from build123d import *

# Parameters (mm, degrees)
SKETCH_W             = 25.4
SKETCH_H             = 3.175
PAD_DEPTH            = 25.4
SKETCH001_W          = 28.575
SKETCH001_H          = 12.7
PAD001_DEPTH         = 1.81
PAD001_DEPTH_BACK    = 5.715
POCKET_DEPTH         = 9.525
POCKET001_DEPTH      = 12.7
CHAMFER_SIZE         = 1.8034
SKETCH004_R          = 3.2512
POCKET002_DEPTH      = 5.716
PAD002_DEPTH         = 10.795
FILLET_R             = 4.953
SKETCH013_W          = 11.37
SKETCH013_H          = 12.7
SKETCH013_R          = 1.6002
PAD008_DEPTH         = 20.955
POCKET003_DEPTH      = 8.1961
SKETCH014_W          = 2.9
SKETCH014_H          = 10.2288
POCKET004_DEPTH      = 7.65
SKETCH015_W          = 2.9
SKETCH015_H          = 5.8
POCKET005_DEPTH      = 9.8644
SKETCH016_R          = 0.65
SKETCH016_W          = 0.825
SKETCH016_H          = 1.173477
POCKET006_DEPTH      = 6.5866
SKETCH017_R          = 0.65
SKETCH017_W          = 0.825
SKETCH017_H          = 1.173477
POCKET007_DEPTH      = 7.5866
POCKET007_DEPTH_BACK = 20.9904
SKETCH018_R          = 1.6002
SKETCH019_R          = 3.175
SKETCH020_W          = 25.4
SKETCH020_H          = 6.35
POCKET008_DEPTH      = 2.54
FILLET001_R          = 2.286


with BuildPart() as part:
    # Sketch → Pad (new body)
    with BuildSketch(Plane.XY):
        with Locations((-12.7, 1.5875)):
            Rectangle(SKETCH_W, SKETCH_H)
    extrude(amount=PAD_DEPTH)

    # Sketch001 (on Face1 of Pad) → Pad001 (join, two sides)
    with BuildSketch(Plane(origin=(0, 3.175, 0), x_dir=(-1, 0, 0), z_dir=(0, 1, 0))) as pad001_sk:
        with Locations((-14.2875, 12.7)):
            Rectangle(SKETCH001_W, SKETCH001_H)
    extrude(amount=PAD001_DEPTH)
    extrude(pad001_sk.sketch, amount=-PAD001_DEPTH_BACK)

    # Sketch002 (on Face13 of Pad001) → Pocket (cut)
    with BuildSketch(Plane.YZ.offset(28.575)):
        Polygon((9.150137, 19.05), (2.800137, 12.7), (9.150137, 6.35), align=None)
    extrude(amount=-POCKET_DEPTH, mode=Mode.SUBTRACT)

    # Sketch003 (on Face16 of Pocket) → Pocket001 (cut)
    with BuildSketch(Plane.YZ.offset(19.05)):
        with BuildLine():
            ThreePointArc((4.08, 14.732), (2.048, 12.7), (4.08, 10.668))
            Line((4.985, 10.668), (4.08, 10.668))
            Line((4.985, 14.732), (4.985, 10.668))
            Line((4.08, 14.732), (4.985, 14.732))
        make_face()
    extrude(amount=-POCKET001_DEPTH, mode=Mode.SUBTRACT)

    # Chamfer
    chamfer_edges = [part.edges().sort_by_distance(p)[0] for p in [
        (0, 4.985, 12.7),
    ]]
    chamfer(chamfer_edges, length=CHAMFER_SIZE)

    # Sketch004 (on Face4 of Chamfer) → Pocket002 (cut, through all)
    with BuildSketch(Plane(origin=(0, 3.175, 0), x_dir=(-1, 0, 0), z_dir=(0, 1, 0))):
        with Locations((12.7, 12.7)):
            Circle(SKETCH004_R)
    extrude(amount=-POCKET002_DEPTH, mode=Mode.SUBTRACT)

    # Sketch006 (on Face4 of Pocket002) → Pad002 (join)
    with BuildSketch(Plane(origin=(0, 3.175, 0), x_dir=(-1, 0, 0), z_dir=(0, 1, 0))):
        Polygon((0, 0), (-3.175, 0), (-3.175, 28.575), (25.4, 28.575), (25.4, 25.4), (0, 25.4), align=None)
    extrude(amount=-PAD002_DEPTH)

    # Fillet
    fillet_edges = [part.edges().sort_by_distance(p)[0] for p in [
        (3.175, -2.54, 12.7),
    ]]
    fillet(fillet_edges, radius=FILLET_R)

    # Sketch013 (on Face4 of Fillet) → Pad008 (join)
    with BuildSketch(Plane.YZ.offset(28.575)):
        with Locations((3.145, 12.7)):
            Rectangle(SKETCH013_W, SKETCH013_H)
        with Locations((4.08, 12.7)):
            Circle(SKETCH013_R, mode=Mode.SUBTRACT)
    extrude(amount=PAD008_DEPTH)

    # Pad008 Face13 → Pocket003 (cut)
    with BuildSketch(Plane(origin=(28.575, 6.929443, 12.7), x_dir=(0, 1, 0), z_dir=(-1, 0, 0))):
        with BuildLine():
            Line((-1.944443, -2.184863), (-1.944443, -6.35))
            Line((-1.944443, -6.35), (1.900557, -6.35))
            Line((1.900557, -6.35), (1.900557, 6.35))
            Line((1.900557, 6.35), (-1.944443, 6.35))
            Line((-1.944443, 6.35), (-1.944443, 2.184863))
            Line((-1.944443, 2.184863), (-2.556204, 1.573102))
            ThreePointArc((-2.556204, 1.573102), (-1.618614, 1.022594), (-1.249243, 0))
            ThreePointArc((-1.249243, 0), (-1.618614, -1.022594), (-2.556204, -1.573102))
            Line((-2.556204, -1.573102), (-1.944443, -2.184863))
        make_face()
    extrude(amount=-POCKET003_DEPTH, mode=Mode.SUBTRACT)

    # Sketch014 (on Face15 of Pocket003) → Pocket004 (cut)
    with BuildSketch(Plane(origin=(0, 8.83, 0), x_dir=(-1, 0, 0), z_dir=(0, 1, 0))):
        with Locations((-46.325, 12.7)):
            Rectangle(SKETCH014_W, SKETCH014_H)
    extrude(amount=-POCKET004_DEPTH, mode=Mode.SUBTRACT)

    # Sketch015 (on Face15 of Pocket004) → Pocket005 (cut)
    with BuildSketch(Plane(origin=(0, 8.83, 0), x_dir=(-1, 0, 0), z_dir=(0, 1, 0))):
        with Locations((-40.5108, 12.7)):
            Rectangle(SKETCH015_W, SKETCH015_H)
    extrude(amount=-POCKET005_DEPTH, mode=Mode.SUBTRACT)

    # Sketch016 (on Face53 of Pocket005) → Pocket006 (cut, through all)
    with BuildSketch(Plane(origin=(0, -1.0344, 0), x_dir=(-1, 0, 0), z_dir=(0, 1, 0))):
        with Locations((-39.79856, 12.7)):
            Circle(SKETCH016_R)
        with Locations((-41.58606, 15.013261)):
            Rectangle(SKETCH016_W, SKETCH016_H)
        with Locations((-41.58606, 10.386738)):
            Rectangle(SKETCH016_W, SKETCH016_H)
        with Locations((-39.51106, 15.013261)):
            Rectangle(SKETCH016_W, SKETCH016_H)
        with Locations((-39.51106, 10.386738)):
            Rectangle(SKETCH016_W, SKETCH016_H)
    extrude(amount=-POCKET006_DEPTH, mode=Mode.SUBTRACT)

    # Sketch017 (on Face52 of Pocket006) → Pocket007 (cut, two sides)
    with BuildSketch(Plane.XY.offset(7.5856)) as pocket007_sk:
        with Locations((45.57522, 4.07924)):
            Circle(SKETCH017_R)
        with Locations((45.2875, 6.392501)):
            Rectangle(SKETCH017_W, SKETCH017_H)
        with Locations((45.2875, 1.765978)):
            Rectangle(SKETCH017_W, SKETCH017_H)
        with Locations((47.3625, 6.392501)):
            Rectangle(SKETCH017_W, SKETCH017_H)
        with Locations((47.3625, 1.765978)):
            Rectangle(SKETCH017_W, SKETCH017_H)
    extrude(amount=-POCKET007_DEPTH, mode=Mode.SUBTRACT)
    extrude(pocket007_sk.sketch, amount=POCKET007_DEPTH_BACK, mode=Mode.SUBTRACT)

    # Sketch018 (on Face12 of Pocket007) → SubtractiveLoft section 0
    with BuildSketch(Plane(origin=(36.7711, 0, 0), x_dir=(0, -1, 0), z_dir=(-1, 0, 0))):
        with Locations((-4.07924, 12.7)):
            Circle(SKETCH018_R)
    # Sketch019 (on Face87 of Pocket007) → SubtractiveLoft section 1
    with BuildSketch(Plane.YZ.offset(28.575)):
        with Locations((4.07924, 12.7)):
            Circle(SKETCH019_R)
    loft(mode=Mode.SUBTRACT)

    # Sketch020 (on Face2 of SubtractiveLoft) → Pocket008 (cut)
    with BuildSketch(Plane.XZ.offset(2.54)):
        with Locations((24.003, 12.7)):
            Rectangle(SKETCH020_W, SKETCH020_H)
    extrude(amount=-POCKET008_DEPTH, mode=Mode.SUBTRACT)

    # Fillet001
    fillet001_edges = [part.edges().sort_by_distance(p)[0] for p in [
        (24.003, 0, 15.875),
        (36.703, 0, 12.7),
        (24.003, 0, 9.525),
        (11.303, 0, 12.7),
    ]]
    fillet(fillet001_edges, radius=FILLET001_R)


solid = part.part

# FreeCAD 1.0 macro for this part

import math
import FreeCAD as App
import Part
import Sketcher

V = App.Vector
Q = App.Units.Quantity


def edges_at(feature, points):
    """Names of the edges that pass closest to the given points."""
    edges = feature.Shape.Edges
    near = lambda p: min(range(len(edges)), key=lambda i: edges[i].distToShape(Part.Vertex(*p))[0])
    return sorted({f"Edge{near(p) + 1}" for p in points})


def add_polygon(sketch, points):
    """Adds a closed chain of lines whose ends are joined by coincident constraints."""
    first, n = sketch.GeometryCount, len(points)
    for a, b in zip(points, points[1:] + points[:1]):
        sketch.addGeometry(Part.LineSegment(App.Vector(*a, 0), App.Vector(*b, 0)), False)
    for i in range(n):
        sketch.addConstraint(Sketcher.Constraint("Coincident", first + i, 2, first + (i + 1) % n, 1))

doc = App.newDocument("Part")
body = doc.addObject("PartDesign::Body", "Body")

sketch1 = body.newObject("Sketcher::SketchObject", "Sketch")
sketch1.AttachmentSupport = (doc.getObject("XY_Plane"), [""])
sketch1.MapMode = "FlatFace"
add_polygon(sketch1, [(-25.4, 3.175), (-25.4, 0), (0, 0), (0, 3.175)])
sketch1.addConstraint([
    Sketcher.Constraint("Vertical", 0),
    Sketcher.Constraint("Horizontal", 1),
    Sketcher.Constraint("Vertical", 2),
    Sketcher.Constraint("Horizontal", 3),
    Sketcher.Constraint("Coincident", 1, 2, -1, 1),
    Sketcher.Constraint("DistanceX", 1, 1, 1, 2, Q("1 in")),
    Sketcher.Constraint("DistanceY", 0, 2, 0, 1, Q("0.125 in")),
])
pad1 = body.newObject("PartDesign::Pad", "Pad")
pad1.Profile = sketch1
pad1.Length = Q("1 in")

sketch2 = body.newObject("Sketcher::SketchObject", "Sketch001")
sketch2.AttachmentSupport = (doc.getObject("XZ_Plane"), [""])
sketch2.MapMode = "FlatFace"
sketch2.AttachmentOffset = App.Placement(V(0, 0, -0.125 * 25.4), App.Rotation())
add_polygon(sketch2, [(28.575, 19.05), (28.575, 6.35), (0, 6.35), (0, 19.05)])
sketch2.addConstraint([
    Sketcher.Constraint("Vertical", 0),
    Sketcher.Constraint("Horizontal", 1),
    Sketcher.Constraint("Vertical", 2),
    Sketcher.Constraint("Horizontal", 3),
    Sketcher.Constraint("PointOnObject", 1, 2, -2),
    Sketcher.Constraint("DistanceY", 0, 2, 0, 1, Q("0.5 in")),
    Sketcher.Constraint("DistanceX", 1, 2, 1, 1, Q("1.125 in")),
    Sketcher.Constraint("DistanceY", -1, 1, 0, 2, Q("0.25 in")),
])
pad2 = body.newObject("PartDesign::Pad", "Pad001")
pad2.Profile = sketch2
pad2.Type = "TwoLengths"
pad2.Length = 1.81
pad2.Length2 = Q("0.225 in")
pad2.Reversed = True

sketch3 = body.newObject("Sketcher::SketchObject", "Sketch002")
sketch3.AttachmentSupport = (doc.getObject("YZ_Plane"), [""])
sketch3.MapMode = "FlatFace"
sketch3.AttachmentOffset = App.Placement(V(0, 0, 1.125 * 25.4), App.Rotation())
add_polygon(sketch3, [(9.150137, 19.05), (2.800137, 12.7), (9.150137, 6.35)])
sketch3.addConstraint([
    Sketcher.Constraint("Vertical", 2),
    Sketcher.Constraint("Perpendicular", 0, 1),
    Sketcher.Constraint("Equal", 0, 1),
    Sketcher.Constraint("DistanceY", 2, 1, 2, 2, Q("0.5 in")),
    Sketcher.Constraint("DistanceY", -1, 1, 0, 2, Q("0.5 in")),
    Sketcher.Constraint("DistanceX", -1, 1, 0, 2, 2.800137),
])
pocket1 = body.newObject("PartDesign::Pocket", "Pocket")
pocket1.Profile = sketch3
pocket1.Length = Q("0.375 in")

sketch4 = body.newObject("Sketcher::SketchObject", "Sketch003")
sketch4.AttachmentSupport = (doc.getObject("YZ_Plane"), [""])
sketch4.MapMode = "FlatFace"
sketch4.AttachmentOffset = App.Placement(V(0, 0, 0.75 * 25.4), App.Rotation())
sketch4.addGeometry([
    Part.ArcOfCircle(Part.Circle(V(4.08, 12.7, 0), V(0, 0, 1), 2.032), math.radians(90), math.radians(270)),
    Part.LineSegment(V(4.08, 10.668, 0), V(4.985, 10.668, 0)),
    Part.LineSegment(V(4.985, 10.668, 0), V(4.985, 14.732, 0)),
    Part.LineSegment(V(4.985, 14.732, 0), V(4.08, 14.732, 0)),
], False)
sketch4.addConstraint([
    Sketcher.Constraint("Tangent", 0, 2, 1, 1),
    Sketcher.Constraint("Coincident", 1, 2, 2, 1),
    Sketcher.Constraint("Coincident", 2, 2, 3, 1),
    Sketcher.Constraint("Tangent", 3, 2, 0, 1),
    Sketcher.Constraint("Horizontal", 1),
    Sketcher.Constraint("Vertical", 2),
    Sketcher.Constraint("Horizontal", 3),
    Sketcher.Constraint("Radius", 0, Q("0.08 in")),
    Sketcher.Constraint("DistanceY", -1, 1, 0, 3, Q("0.5 in")),
    Sketcher.Constraint("DistanceX", 1, 1, 1, 2, 0.905),
    Sketcher.Constraint("DistanceX", -1, 1, 0, 3, 4.08),
])
pocket2 = body.newObject("PartDesign::Pocket", "Pocket001")
pocket2.Profile = sketch4
pocket2.Length = Q("0.5 in")
doc.recompute()

chamfer = body.newObject("PartDesign::Chamfer", "Chamfer")
chamfer.Base = (pocket2, edges_at(pocket2, [(0, 4.985, 12.7)]))
chamfer.Size = Q("0.071 in")

sketch5 = body.newObject("Sketcher::SketchObject", "Sketch004")
sketch5.AttachmentSupport = (doc.getObject("XZ_Plane"), [""])
sketch5.MapMode = "FlatFace"
sketch5.AttachmentOffset = App.Placement(V(0, 0, -0.125 * 25.4), App.Rotation())
sketch5.addGeometry(Part.Circle(V(-12.7, 12.7, 0), V(0, 0, 1), 3.2512), False)
sketch5.addConstraint([
    Sketcher.Constraint("Diameter", 0, Q("0.256 in")),
    Sketcher.Constraint("DistanceX", 0, 3, -1, 1, Q("0.5 in")),
    Sketcher.Constraint("DistanceY", -1, 1, 0, 3, Q("0.5 in")),
])
pocket3 = body.newObject("PartDesign::Pocket", "Pocket002")
pocket3.Profile = sketch5
pocket3.Type = "ThroughAll"
pocket3.Reversed = True

sketch6 = body.newObject("Sketcher::SketchObject", "Sketch005")
sketch6.AttachmentSupport = (doc.getObject("XZ_Plane"), [""])
sketch6.MapMode = "FlatFace"
sketch6.AttachmentOffset = App.Placement(V(0, 0, -0.125 * 25.4), App.Rotation())
add_polygon(sketch6, [(3.175, 0), (0, 0), (0, 25.4), (-25.4, 25.4), (-25.4, 28.575), (3.175, 28.575)])
sketch6.addConstraint([
    Sketcher.Constraint("Horizontal", 0),
    Sketcher.Constraint("Vertical", 1),
    Sketcher.Constraint("Horizontal", 2),
    Sketcher.Constraint("Vertical", 3),
    Sketcher.Constraint("Horizontal", 4),
    Sketcher.Constraint("Vertical", 5),
    Sketcher.Constraint("Coincident", 0, 2, -1, 1),
    Sketcher.Constraint("Equal", 2, 1),
    Sketcher.Constraint("Equal", 0, 3),
    Sketcher.Constraint("DistanceX", 2, 2, 2, 1, Q("1 in")),
    Sketcher.Constraint("DistanceX", 0, 2, 0, 1, Q("0.125 in")),
])
pad3 = body.newObject("PartDesign::Pad", "Pad002")
pad3.Profile = sketch6
pad3.Length = Q("0.425 in")
doc.recompute()

fillet = body.newObject("PartDesign::Fillet", "Fillet")
fillet.Base = (pad3, edges_at(pad3, [(3.175, -2.54, 12.7)]))
fillet.Radius = Q("0.195 in")

sketch7 = body.newObject("Sketcher::SketchObject", "Sketch006")
sketch7.AttachmentSupport = (doc.getObject("YZ_Plane"), [""])
sketch7.MapMode = "FlatFace"
sketch7.AttachmentOffset = App.Placement(V(0, 0, 1.125 * 25.4), App.Rotation())
add_polygon(sketch7, [(-2.54, 19.05), (-2.54, 6.35), (8.83, 6.35), (8.83, 19.05)])
sketch7.addGeometry(Part.Circle(V(4.08, 12.7, 0), V(0, 0, 1), 1.6002), False)
sketch7.addConstraint([
    Sketcher.Constraint("Vertical", 0),
    Sketcher.Constraint("Horizontal", 1),
    Sketcher.Constraint("Vertical", 2),
    Sketcher.Constraint("Horizontal", 3),
    Sketcher.Constraint("Diameter", 4, Q("0.126 in")),
    Sketcher.Constraint("DistanceY", 0, 2, 0, 1, Q("0.5 in")),
    Sketcher.Constraint("DistanceY", -1, 1, 4, 3, Q("0.5 in")),
    Sketcher.Constraint("DistanceX", 0, 2, -1, 1, Q("0.1 in")),
    Sketcher.Constraint("DistanceY", -1, 1, 0, 2, Q("0.25 in")),
    Sketcher.Constraint("DistanceX", 1, 1, 1, 2, 11.37),
    Sketcher.Constraint("DistanceX", -1, 1, 4, 3, 4.08),
])
pad4 = body.newObject("PartDesign::Pad", "Pad003")
pad4.Profile = sketch7
pad4.Length = Q("0.825 in")

sketch8 = body.newObject("Sketcher::SketchObject", "Sketch007")
sketch8.AttachmentSupport = (doc.getObject("YZ_Plane"), [""])
sketch8.MapMode = "FlatFace"
sketch8.AttachmentOffset = App.Placement(V(0, 0, 1.125 * 25.4), App.Rotation())
sketch8.addGeometry([
    Part.LineSegment(V(4.985, 14.884863, 0), V(4.985, 19.05, 0)),
    Part.LineSegment(V(4.985, 19.05, 0), V(8.83, 19.05, 0)),
    Part.LineSegment(V(8.83, 19.05, 0), V(8.83, 6.35, 0)),
    Part.LineSegment(V(8.83, 6.35, 0), V(4.985, 6.35, 0)),
    Part.LineSegment(V(4.985, 6.35, 0), V(4.985, 10.515137, 0)),
    Part.LineSegment(V(4.985, 10.515137, 0), V(4.373239, 11.126898, 0)),
    Part.ArcOfCircle(Part.Circle(V(4.079999, 12.700001, 0), V(0, 0, 1), 1.600201), math.radians(-79.440767), math.radians(-0.000038)),
    Part.ArcOfCircle(Part.Circle(V(4.079999, 12.699999, 0), V(0, 0, 1), 1.600201), math.radians(0.000038), math.radians(79.440767)),
    Part.LineSegment(V(4.373239, 14.273102, 0), V(4.985, 14.884863, 0)),
], False)
sketch8.addConstraint([
    Sketcher.Constraint("Coincident", 0, 2, 1, 1),
    Sketcher.Constraint("Coincident", 1, 2, 2, 1),
    Sketcher.Constraint("Coincident", 2, 2, 3, 1),
    Sketcher.Constraint("Coincident", 3, 2, 4, 1),
    Sketcher.Constraint("Coincident", 4, 2, 5, 1),
    Sketcher.Constraint("Coincident", 5, 2, 6, 1),
    Sketcher.Constraint("Tangent", 6, 2, 7, 1),
    Sketcher.Constraint("Coincident", 7, 2, 8, 1),
    Sketcher.Constraint("Coincident", 8, 2, 0, 1),
    Sketcher.Constraint("Vertical", 0),
    Sketcher.Constraint("Horizontal", 1),
    Sketcher.Constraint("Vertical", 2),
    Sketcher.Constraint("Horizontal", 3),
    Sketcher.Constraint("Vertical", 4),
    Sketcher.Constraint("Equal", 6, 7),
    Sketcher.Constraint("Perpendicular", 5, 8),
    Sketcher.Constraint("Horizontal", 7, 3, 6, 2),
    Sketcher.Constraint("Vertical", 0, 2, 3, 2),
    Sketcher.Constraint("Vertical", 5, 2, 7, 2),
    Sketcher.Constraint("Equal", 0, 4),
    Sketcher.Constraint("Equal", 5, 8),
    Sketcher.Constraint("DistanceY", 2, 2, 2, 1, Q("0.5 in")),
    Sketcher.Constraint("Radius", 6, Q("0.063 in")),
    Sketcher.Constraint("DistanceY", -1, 1, 6, 3, Q("0.5 in")),
    Sketcher.Constraint("DistanceX", 1, 1, 1, 2, 3.845),
    Sketcher.Constraint("DistanceX", -1, 1, 6, 3, 4.079999),
    Sketcher.Constraint("DistanceX", -1, 1, 0, 2, 4.985),
    Sketcher.Constraint("DistanceY", -1, 1, 5, 2, 11.126898),
])
pocket4 = body.newObject("PartDesign::Pocket", "Pocket003")
pocket4.Profile = sketch8
pocket4.Length = 8.1961
pocket4.Reversed = True

sketch9 = body.newObject("Sketcher::SketchObject", "Sketch008")
sketch9.AttachmentSupport = (doc.getObject("XZ_Plane"), [""])
sketch9.MapMode = "FlatFace"
sketch9.AttachmentOffset = App.Placement(V(0, 0, -8.83), App.Rotation())
add_polygon(sketch9, [(47.775, 17.8144), (47.775, 7.5856), (44.875, 7.5856), (44.875, 17.8144)])
sketch9.addConstraint([
    Sketcher.Constraint("Vertical", 0),
    Sketcher.Constraint("Horizontal", 1),
    Sketcher.Constraint("Vertical", 2),
    Sketcher.Constraint("Horizontal", 3),
    Sketcher.Constraint("DistanceX", 1, 2, 1, 1, 2.9),
    Sketcher.Constraint("DistanceY", 0, 2, 0, 1, 10.2288),
    Sketcher.Constraint("DistanceX", -1, 1, 0, 2, 47.775),
    Sketcher.Constraint("DistanceY", -1, 1, 0, 2, 7.5856),
])
pocket5 = body.newObject("PartDesign::Pocket", "Pocket004")
pocket5.Profile = sketch9
pocket5.Length = 7.65
pocket5.Reversed = True

sketch10 = body.newObject("Sketcher::SketchObject", "Sketch009")
sketch10.AttachmentSupport = (doc.getObject("XZ_Plane"), [""])
sketch10.MapMode = "FlatFace"
sketch10.AttachmentOffset = App.Placement(V(0, 0, -8.83), App.Rotation())
add_polygon(sketch10, [(41.9608, 15.6), (41.9608, 9.8), (39.0608, 9.8), (39.0608, 15.6)])
sketch10.addConstraint([
    Sketcher.Constraint("Vertical", 0),
    Sketcher.Constraint("Horizontal", 1),
    Sketcher.Constraint("Vertical", 2),
    Sketcher.Constraint("Horizontal", 3),
    Sketcher.Constraint("DistanceX", -1, 1, 0, 2, Q("1.652 in")),
    Sketcher.Constraint("DistanceX", 1, 2, 1, 1, 2.9),
    Sketcher.Constraint("DistanceY", 0, 2, 0, 1, 5.8),
    Sketcher.Constraint("DistanceY", -1, 1, 0, 2, 9.8),
])
pocket6 = body.newObject("PartDesign::Pocket", "Pocket005")
pocket6.Profile = sketch10
pocket6.Length = 9.8644
pocket6.Reversed = True

sketch11 = body.newObject("Sketcher::SketchObject", "Sketch010")
sketch11.AttachmentSupport = (doc.getObject("XZ_Plane"), [""])
sketch11.MapMode = "FlatFace"
sketch11.AttachmentOffset = App.Placement(V(0, 0, 1.0344), App.Rotation())
sketch11.addGeometry(Part.Circle(V(39.79856, 12.7, 0), V(0, 0, 1), 0.65), False)
add_polygon(sketch11, [(41.99856, 15.599999), (41.99856, 14.426523), (41.17356, 14.426523), (41.17356, 15.599999)])
add_polygon(sketch11, [(41.99856, 10.973477), (41.99856, 9.8), (41.17356, 9.8), (41.17356, 10.973477)])
add_polygon(sketch11, [(39.92356, 15.599999), (39.92356, 14.426523), (39.09856, 14.426523), (39.09856, 15.599999)])
add_polygon(sketch11, [(39.92356, 10.973477), (39.92356, 9.8), (39.09856, 9.8), (39.09856, 10.973477)])
sketch11.addConstraint([
    Sketcher.Constraint("Vertical", 1),
    Sketcher.Constraint("Horizontal", 2),
    Sketcher.Constraint("Vertical", 3),
    Sketcher.Constraint("Horizontal", 4),
    Sketcher.Constraint("Vertical", 5),
    Sketcher.Constraint("Horizontal", 6),
    Sketcher.Constraint("Vertical", 7),
    Sketcher.Constraint("Horizontal", 8),
    Sketcher.Constraint("Vertical", 9),
    Sketcher.Constraint("Horizontal", 10),
    Sketcher.Constraint("Vertical", 11),
    Sketcher.Constraint("Horizontal", 12),
    Sketcher.Constraint("Vertical", 13),
    Sketcher.Constraint("Horizontal", 14),
    Sketcher.Constraint("Vertical", 15),
    Sketcher.Constraint("Horizontal", 16),
    Sketcher.Constraint("Horizontal", 2, 2, 9, 2),
    Sketcher.Constraint("Horizontal", 4, 2, 11, 2),
    Sketcher.Constraint("Horizontal", 6, 2, 13, 2),
    Sketcher.Constraint("Horizontal", 8, 2, 15, 2),
    Sketcher.Constraint("Vertical", 4, 2, 5, 2),
    Sketcher.Constraint("Vertical", 3, 2, 6, 2),
    Sketcher.Constraint("Vertical", 12, 2, 13, 2),
    Sketcher.Constraint("Vertical", 11, 2, 14, 2),
    Sketcher.Constraint("Equal", 8, 10),
    Sketcher.Constraint("Equal", 3, 5),
    Sketcher.Constraint("DistanceY", -1, 1, 0, 3, Q("0.5 in")),
    Sketcher.Constraint("Diameter", 0, 1.3),
    Sketcher.Constraint("DistanceY", 1, 2, 1, 1, Q("0.0461999 in")),
    Sketcher.Constraint("DistanceX", 2, 2, 2, 1, 0.825),
    Sketcher.Constraint("DistanceY", -1, 1, 3, 2, 15.599999),
    Sketcher.Constraint("DistanceY", -1, 1, 5, 2, 9.8),
    Sketcher.Constraint("DistanceX", 0, 3, 1, 2, 2.2),
    Sketcher.Constraint("DistanceX", 9, 2, 2, 2, 1.25),
    Sketcher.Constraint("DistanceX", -1, 1, 0, 3, 39.79856),
])
pocket7 = body.newObject("PartDesign::Pocket", "Pocket006")
pocket7.Profile = sketch11
pocket7.Type = "ThroughAll"
pocket7.Reversed = True

sketch12 = body.newObject("Sketcher::SketchObject", "Sketch011")
sketch12.AttachmentSupport = (doc.getObject("XY_Plane"), [""])
sketch12.MapMode = "FlatFace"
sketch12.AttachmentOffset = App.Placement(V(0, 0, 7.5856), App.Rotation())
sketch12.addGeometry(Part.Circle(V(45.57522, 4.07924, 0), V(0, 0, 1), 0.65), False)
add_polygon(sketch12, [(44.875, 6.97924), (44.875, 5.805763), (45.7, 5.805763), (45.7, 6.97924)])
add_polygon(sketch12, [(44.875, 2.352717), (44.875, 1.179239), (45.7, 1.179239), (45.7, 2.352717)])
add_polygon(sketch12, [(46.95, 6.97924), (46.95, 5.805763), (47.775, 5.805763), (47.775, 6.97924)])
add_polygon(sketch12, [(46.95, 2.352717), (46.95, 1.179239), (47.775, 1.179239), (47.775, 2.352717)])
sketch12.addConstraint([
    Sketcher.Constraint("Vertical", 1),
    Sketcher.Constraint("Horizontal", 2),
    Sketcher.Constraint("Vertical", 3),
    Sketcher.Constraint("Horizontal", 4),
    Sketcher.Constraint("Vertical", 5),
    Sketcher.Constraint("Horizontal", 6),
    Sketcher.Constraint("Vertical", 7),
    Sketcher.Constraint("Horizontal", 8),
    Sketcher.Constraint("Vertical", 9),
    Sketcher.Constraint("Horizontal", 10),
    Sketcher.Constraint("Vertical", 11),
    Sketcher.Constraint("Horizontal", 12),
    Sketcher.Constraint("Vertical", 13),
    Sketcher.Constraint("Horizontal", 14),
    Sketcher.Constraint("Vertical", 15),
    Sketcher.Constraint("Horizontal", 16),
    Sketcher.Constraint("Horizontal", 2, 2, 9, 2),
    Sketcher.Constraint("Horizontal", 4, 2, 11, 2),
    Sketcher.Constraint("Horizontal", 6, 2, 13, 2),
    Sketcher.Constraint("Horizontal", 8, 2, 15, 2),
    Sketcher.Constraint("Vertical", 4, 2, 5, 2),
    Sketcher.Constraint("Vertical", 3, 2, 6, 2),
    Sketcher.Constraint("Vertical", 12, 2, 13, 2),
    Sketcher.Constraint("Vertical", 11, 2, 14, 2),
    Sketcher.Constraint("Equal", 8, 10),
    Sketcher.Constraint("Equal", 3, 5),
    Sketcher.Constraint("Diameter", 0, 1.3),
    Sketcher.Constraint("DistanceY", 1, 2, 1, 1, Q("0.0461999 in")),
    Sketcher.Constraint("DistanceX", 2, 1, 2, 2, 0.825),
    Sketcher.Constraint("DistanceX", -1, 1, 0, 3, Q("1.7943 in")),
    Sketcher.Constraint("DistanceY", -1, 1, 0, 3, Q("0.1606 in")),
    Sketcher.Constraint("DistanceX", -1, 1, 1, 2, 44.875),
    Sketcher.Constraint("DistanceX", -1, 1, 9, 2, 46.95),
    Sketcher.Constraint("DistanceY", 0, 3, 3, 2, 2.899999),
    Sketcher.Constraint("DistanceY", 5, 2, 0, 3, 2.900001),
])
pocket8 = body.newObject("PartDesign::Pocket", "Pocket007")
pocket8.Profile = sketch12
pocket8.Type = "ThroughAll"
pocket8.Midplane = True

sketch13 = body.newObject("Sketcher::SketchObject", "Sketch012")
sketch13.AttachmentSupport = (doc.getObject("YZ_Plane"), [""])
sketch13.MapMode = "FlatFace"
sketch13.AttachmentOffset = App.Placement(V(0, 0, 36.7711), App.Rotation())
sketch13.addGeometry(Part.Circle(V(4.07924, 12.7, 0), V(0, 0, 1), 1.6002), False)
sketch13.addConstraint([
    Sketcher.Constraint("Diameter", 0, Q("0.126 in")),
    Sketcher.Constraint("DistanceY", -1, 1, 0, 3, Q("0.5 in")),
    Sketcher.Constraint("DistanceX", -1, 1, 0, 3, Q("0.1606 in")),
])

sketch14 = body.newObject("Sketcher::SketchObject", "Sketch013")
sketch14.AttachmentSupport = (doc.getObject("YZ_Plane"), [""])
sketch14.MapMode = "FlatFace"
sketch14.AttachmentOffset = App.Placement(V(0, 0, 1.125 * 25.4), App.Rotation())
sketch14.addGeometry(Part.Circle(V(4.07924, 12.7, 0), V(0, 0, 1), 3.175), False)
sketch14.addConstraint([
    Sketcher.Constraint("Diameter", 0, Q("0.25 in")),
    Sketcher.Constraint("DistanceY", -1, 1, 0, 3, Q("0.5 in")),
    Sketcher.Constraint("DistanceX", -1, 1, 0, 3, Q("0.1606 in")),
])

subtractiveloft = body.newObject("PartDesign::SubtractiveLoft", "SubtractiveLoft")
subtractiveloft.Profile = sketch13
subtractiveloft.Sections = [sketch14]

sketch15 = body.newObject("Sketcher::SketchObject", "Sketch014")
sketch15.AttachmentSupport = (doc.getObject("XZ_Plane"), [""])
sketch15.MapMode = "FlatFace"
sketch15.AttachmentOffset = App.Placement(V(0, 0, 0.1 * 25.4), App.Rotation())
add_polygon(sketch15, [(11.303, 15.875), (11.303, 9.525), (36.703, 9.525), (36.703, 15.875)])
sketch15.addConstraint([
    Sketcher.Constraint("Vertical", 0),
    Sketcher.Constraint("Horizontal", 1),
    Sketcher.Constraint("Vertical", 2),
    Sketcher.Constraint("Horizontal", 3),
    Sketcher.Constraint("DistanceX", 1, 1, 1, 2, Q("1 in")),
    Sketcher.Constraint("DistanceY", 0, 2, 0, 1, Q("0.25 in")),
    Sketcher.Constraint("DistanceX", -1, 1, 0, 2, Q("0.445 in")),
    Sketcher.Constraint("DistanceY", -1, 1, 0, 2, Q("0.375 in")),
])
pocket9 = body.newObject("PartDesign::Pocket", "Pocket008")
pocket9.Profile = sketch15
pocket9.Length = Q("0.1 in")
doc.recompute()

fillet2 = body.newObject("PartDesign::Fillet", "Fillet001")
fillet2.Base = (pocket9, edges_at(pocket9, [
    (24.003, 0, 15.875),
    (36.703, 0, 12.7),
    (24.003, 0, 9.525),
    (11.303, 0, 12.7),
]))
fillet2.Radius = Q("0.09 in")

doc.recompute()
